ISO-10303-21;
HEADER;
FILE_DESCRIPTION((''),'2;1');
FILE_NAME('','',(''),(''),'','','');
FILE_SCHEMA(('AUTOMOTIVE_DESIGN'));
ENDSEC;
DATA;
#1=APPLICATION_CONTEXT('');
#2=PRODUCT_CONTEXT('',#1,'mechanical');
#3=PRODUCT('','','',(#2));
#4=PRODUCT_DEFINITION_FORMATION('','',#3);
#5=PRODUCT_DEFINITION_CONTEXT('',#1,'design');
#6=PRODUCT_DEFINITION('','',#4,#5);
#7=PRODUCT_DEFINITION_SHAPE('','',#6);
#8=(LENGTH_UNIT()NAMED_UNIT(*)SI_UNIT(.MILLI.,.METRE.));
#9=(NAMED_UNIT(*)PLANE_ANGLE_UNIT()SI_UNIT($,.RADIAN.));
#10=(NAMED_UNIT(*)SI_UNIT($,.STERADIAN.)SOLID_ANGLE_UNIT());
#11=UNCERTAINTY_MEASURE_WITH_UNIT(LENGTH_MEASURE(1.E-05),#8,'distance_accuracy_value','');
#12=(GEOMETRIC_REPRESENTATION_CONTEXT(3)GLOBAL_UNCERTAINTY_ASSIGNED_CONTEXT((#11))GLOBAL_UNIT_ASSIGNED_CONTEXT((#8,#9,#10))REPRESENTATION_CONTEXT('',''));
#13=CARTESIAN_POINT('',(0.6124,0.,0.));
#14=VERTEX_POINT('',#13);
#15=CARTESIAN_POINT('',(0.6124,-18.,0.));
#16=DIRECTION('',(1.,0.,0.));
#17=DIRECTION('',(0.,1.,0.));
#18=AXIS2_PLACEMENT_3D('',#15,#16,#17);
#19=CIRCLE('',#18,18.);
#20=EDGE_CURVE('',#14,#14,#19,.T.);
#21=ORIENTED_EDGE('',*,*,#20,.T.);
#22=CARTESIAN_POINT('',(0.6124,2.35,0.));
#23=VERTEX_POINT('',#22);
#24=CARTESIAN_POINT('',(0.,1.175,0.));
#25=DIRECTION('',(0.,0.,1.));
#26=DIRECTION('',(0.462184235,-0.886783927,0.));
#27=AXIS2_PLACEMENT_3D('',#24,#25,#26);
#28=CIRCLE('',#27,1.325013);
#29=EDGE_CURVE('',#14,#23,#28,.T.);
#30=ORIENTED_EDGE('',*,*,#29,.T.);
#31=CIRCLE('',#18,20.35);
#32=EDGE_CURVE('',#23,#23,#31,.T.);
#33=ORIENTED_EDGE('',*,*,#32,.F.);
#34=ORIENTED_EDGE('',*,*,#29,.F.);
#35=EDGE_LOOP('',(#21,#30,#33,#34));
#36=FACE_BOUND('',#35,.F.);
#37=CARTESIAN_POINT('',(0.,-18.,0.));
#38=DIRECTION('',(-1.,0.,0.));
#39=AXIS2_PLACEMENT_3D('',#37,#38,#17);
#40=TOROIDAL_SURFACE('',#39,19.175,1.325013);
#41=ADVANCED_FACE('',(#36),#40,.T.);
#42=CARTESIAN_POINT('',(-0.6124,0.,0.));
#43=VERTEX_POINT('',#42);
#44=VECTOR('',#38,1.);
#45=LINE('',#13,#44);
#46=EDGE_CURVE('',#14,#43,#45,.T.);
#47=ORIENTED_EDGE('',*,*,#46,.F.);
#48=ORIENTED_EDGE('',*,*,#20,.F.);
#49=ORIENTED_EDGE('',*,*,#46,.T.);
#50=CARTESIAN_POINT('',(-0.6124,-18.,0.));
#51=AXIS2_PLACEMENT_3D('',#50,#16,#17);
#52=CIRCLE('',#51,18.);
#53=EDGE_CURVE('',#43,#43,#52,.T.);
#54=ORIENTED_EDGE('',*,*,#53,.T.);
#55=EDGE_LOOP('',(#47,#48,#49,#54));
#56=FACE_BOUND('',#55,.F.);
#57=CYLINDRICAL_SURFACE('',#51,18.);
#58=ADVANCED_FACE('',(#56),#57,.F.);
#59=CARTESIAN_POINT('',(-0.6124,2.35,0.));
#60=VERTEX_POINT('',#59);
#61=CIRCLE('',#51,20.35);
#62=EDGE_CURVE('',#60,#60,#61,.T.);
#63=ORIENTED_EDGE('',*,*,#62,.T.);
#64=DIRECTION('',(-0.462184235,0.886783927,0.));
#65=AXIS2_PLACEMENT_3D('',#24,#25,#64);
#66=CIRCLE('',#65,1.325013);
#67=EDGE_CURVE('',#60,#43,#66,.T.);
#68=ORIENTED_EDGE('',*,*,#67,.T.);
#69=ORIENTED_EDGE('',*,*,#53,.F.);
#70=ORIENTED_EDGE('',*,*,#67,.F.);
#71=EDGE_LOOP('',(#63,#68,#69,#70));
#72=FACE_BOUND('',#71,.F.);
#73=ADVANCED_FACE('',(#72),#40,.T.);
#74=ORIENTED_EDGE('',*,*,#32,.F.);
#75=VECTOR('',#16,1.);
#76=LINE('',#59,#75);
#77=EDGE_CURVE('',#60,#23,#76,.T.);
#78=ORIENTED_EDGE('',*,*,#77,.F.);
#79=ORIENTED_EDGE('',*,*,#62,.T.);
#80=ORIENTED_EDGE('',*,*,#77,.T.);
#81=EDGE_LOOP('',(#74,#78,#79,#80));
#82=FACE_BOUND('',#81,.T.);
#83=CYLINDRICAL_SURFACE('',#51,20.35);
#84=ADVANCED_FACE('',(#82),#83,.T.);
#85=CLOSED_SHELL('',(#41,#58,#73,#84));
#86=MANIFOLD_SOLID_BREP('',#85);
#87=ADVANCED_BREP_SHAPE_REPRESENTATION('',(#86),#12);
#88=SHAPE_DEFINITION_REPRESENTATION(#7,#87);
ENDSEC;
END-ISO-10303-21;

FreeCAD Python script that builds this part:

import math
import FreeCAD as App
import Part
import Sketcher
Q = App.Units.Quantity

doc = App.newDocument("Part")
params = doc.addObject("Spreadsheet::Sheet", "Params")
for row, (alias, value) in enumerate([
    ("revolution_angle", "360 deg"),
], start=1):
    params.set(f"A{row}", alias)
    params.set(f"B{row}", "=" + value)
    params.setAlias(f"B{row}", alias)

body = doc.addObject("PartDesign::Body", "Body")

sketch1 = doc.addObject("Sketcher::SketchObject", "Sketch")
body.addObject(sketch1)
sketch1.AttachmentSupport = (doc.XY_Plane, [""])
sketch1.MapMode = "FlatFace"
sketch1.addGeometry(Part.ArcOfCircle(Part.Circle(App.Vector(0, 1.2, 0), App.Vector(0, 0, 1), 1.3), math.radians(118), math.radians(242)), False)
sketch1.addGeometry(Part.LineSegment(App.Vector(-0.6, 0, 0), App.Vector(0.6, 0, 0)), False)
sketch1.addGeometry(Part.ArcOfCircle(Part.Circle(App.Vector(0, 1.2, 0), App.Vector(0, 0, 1), 1.3), math.radians(-62), math.radians(62)), False)
sketch1.addGeometry(Part.LineSegment(App.Vector(0.6, 2.4, 0), App.Vector(-0.6, 2.4, 0)), False)
sketch1.addGeometry(Part.LineSegment(App.Vector(-0.6, -18, 0), App.Vector(0.6, -18, 0)), True)
sketch1.addConstraint(Sketcher.Constraint("Coincident", 0, 2, 1, 1))
sketch1.addConstraint(Sketcher.Constraint("Coincident", 1, 2, 2, 1))
sketch1.addConstraint(Sketcher.Constraint("Coincident", 2, 2, 3, 1))
sketch1.addConstraint(Sketcher.Constraint("Coincident", 3, 2, 0, 1))
sketch1.addConstraint(Sketcher.Constraint("Horizontal", 1))
sketch1.addConstraint(Sketcher.Constraint("Horizontal", 3))
sketch1.addConstraint(Sketcher.Constraint("Horizontal", 4))
sketch1.addConstraint(Sketcher.Constraint("Coincident", 2, 3, 0, 3))
sketch1.addConstraint(Sketcher.Constraint("Equal", 0, 2))
sketch1.addConstraint(Sketcher.Constraint("Symmetric", 0, 2, 1, 2, -1, 1))
sketch1.addConstraint(Sketcher.Constraint("Vertical", 1, 2, 2, 2))
sketch1.addConstraint(Sketcher.Constraint("Vertical", 3, 2, 4, 1))
sketch1.addConstraint(Sketcher.Constraint("Vertical", 2, 2, 4, 2))
sketch1.addConstraint(Sketcher.Constraint("Radius", 0, Q("1.325 mm")))
sketch1.addConstraint(Sketcher.Constraint("DistanceY", -1, 1, 2, 2, Q("2.35 mm")))
sketch1.addConstraint(Sketcher.Constraint("DistanceY", 4, 1, -1, 1, Q("18 mm")))
revolution = doc.addObject("PartDesign::Revolution", "Revolution")
body.addObject(revolution)
revolution.Profile = sketch1
revolution.ReferenceAxis = (sketch1, ["Axis0"])
revolution.setExpression("Angle", "Params.revolution_angle")

doc.recompute()
